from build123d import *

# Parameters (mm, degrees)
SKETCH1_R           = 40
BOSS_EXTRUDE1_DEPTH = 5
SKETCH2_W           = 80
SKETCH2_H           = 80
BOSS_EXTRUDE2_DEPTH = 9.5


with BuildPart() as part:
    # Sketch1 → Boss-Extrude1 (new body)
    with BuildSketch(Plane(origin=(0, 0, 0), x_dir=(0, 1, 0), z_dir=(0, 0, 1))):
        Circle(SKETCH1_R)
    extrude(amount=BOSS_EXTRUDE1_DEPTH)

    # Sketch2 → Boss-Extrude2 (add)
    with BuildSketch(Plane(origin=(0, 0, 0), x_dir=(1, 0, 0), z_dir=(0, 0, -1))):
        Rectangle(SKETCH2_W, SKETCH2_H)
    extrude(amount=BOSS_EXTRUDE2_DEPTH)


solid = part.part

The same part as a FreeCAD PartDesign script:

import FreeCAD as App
import Part
import Sketcher
from FreeCAD import Vector
Q = App.Units.Quantity

doc = App.newDocument("Part")
body = doc.addObject("PartDesign::Body", "Body")

# Sketch on XY plane
sketch1 = body.newObject("Sketcher::SketchObject", "Sketch")
sketch1.AttachmentSupport = (doc.getObject("XY_Plane"), [""])
sketch1.MapMode = "FlatFace"
sketch1.addGeometry(Part.Circle(Vector(0, 0, 0), Vector(0, 0, 1), 40), False)
sketch1.addConstraint([
    Sketcher.Constraint("Coincident", 0, 3, -1, 1),
    Sketcher.Constraint("Diameter", 0, Q("80 mm")),
])
pad1 = body.newObject("PartDesign::Pad", "Pad")
pad1.Profile = sketch1
pad1.Length = 5

# Sketch on XY plane
sketch2 = body.newObject("Sketcher::SketchObject", "Sketch001")
sketch2.AttachmentSupport = (doc.getObject("XY_Plane"), [""])
sketch2.MapMode = "FlatFace"
sketch2.addGeometry([
    Part.LineSegment(Vector(-40, -40, 0), Vector(-40, 40, 0)),
    Part.LineSegment(Vector(-40, 40, 0), Vector(40, 40, 0)),
    Part.LineSegment(Vector(40, 40, 0), Vector(40, -40, 0)),
    Part.LineSegment(Vector(40, -40, 0), Vector(-40, -40, 0)),
], False)
sketch2.addConstraint([
    Sketcher.Constraint("Coincident", 0, 2, 1, 1),
    Sketcher.Constraint("Coincident", 1, 2, 2, 1),
    Sketcher.Constraint("Coincident", 2, 2, 3, 1),
    Sketcher.Constraint("Coincident", 3, 2, 0, 1),
    Sketcher.Constraint("Vertical", 0),
    Sketcher.Constraint("Horizontal", 1),
    Sketcher.Constraint("Vertical", 2),
    Sketcher.Constraint("Horizontal", 3),
    Sketcher.Constraint("Symmetric", 0, 2, 2, 2, -1, 1),
    Sketcher.Constraint("Equal", 3, 0),
    Sketcher.Constraint("DistanceX", 1, 1, 1, 2, Q("80 mm")),
])
pad2 = body.newObject("PartDesign::Pad", "Pad001")
pad2.Profile = sketch2
pad2.Length = 9.5
pad2.Reversed = True

doc.recompute()
